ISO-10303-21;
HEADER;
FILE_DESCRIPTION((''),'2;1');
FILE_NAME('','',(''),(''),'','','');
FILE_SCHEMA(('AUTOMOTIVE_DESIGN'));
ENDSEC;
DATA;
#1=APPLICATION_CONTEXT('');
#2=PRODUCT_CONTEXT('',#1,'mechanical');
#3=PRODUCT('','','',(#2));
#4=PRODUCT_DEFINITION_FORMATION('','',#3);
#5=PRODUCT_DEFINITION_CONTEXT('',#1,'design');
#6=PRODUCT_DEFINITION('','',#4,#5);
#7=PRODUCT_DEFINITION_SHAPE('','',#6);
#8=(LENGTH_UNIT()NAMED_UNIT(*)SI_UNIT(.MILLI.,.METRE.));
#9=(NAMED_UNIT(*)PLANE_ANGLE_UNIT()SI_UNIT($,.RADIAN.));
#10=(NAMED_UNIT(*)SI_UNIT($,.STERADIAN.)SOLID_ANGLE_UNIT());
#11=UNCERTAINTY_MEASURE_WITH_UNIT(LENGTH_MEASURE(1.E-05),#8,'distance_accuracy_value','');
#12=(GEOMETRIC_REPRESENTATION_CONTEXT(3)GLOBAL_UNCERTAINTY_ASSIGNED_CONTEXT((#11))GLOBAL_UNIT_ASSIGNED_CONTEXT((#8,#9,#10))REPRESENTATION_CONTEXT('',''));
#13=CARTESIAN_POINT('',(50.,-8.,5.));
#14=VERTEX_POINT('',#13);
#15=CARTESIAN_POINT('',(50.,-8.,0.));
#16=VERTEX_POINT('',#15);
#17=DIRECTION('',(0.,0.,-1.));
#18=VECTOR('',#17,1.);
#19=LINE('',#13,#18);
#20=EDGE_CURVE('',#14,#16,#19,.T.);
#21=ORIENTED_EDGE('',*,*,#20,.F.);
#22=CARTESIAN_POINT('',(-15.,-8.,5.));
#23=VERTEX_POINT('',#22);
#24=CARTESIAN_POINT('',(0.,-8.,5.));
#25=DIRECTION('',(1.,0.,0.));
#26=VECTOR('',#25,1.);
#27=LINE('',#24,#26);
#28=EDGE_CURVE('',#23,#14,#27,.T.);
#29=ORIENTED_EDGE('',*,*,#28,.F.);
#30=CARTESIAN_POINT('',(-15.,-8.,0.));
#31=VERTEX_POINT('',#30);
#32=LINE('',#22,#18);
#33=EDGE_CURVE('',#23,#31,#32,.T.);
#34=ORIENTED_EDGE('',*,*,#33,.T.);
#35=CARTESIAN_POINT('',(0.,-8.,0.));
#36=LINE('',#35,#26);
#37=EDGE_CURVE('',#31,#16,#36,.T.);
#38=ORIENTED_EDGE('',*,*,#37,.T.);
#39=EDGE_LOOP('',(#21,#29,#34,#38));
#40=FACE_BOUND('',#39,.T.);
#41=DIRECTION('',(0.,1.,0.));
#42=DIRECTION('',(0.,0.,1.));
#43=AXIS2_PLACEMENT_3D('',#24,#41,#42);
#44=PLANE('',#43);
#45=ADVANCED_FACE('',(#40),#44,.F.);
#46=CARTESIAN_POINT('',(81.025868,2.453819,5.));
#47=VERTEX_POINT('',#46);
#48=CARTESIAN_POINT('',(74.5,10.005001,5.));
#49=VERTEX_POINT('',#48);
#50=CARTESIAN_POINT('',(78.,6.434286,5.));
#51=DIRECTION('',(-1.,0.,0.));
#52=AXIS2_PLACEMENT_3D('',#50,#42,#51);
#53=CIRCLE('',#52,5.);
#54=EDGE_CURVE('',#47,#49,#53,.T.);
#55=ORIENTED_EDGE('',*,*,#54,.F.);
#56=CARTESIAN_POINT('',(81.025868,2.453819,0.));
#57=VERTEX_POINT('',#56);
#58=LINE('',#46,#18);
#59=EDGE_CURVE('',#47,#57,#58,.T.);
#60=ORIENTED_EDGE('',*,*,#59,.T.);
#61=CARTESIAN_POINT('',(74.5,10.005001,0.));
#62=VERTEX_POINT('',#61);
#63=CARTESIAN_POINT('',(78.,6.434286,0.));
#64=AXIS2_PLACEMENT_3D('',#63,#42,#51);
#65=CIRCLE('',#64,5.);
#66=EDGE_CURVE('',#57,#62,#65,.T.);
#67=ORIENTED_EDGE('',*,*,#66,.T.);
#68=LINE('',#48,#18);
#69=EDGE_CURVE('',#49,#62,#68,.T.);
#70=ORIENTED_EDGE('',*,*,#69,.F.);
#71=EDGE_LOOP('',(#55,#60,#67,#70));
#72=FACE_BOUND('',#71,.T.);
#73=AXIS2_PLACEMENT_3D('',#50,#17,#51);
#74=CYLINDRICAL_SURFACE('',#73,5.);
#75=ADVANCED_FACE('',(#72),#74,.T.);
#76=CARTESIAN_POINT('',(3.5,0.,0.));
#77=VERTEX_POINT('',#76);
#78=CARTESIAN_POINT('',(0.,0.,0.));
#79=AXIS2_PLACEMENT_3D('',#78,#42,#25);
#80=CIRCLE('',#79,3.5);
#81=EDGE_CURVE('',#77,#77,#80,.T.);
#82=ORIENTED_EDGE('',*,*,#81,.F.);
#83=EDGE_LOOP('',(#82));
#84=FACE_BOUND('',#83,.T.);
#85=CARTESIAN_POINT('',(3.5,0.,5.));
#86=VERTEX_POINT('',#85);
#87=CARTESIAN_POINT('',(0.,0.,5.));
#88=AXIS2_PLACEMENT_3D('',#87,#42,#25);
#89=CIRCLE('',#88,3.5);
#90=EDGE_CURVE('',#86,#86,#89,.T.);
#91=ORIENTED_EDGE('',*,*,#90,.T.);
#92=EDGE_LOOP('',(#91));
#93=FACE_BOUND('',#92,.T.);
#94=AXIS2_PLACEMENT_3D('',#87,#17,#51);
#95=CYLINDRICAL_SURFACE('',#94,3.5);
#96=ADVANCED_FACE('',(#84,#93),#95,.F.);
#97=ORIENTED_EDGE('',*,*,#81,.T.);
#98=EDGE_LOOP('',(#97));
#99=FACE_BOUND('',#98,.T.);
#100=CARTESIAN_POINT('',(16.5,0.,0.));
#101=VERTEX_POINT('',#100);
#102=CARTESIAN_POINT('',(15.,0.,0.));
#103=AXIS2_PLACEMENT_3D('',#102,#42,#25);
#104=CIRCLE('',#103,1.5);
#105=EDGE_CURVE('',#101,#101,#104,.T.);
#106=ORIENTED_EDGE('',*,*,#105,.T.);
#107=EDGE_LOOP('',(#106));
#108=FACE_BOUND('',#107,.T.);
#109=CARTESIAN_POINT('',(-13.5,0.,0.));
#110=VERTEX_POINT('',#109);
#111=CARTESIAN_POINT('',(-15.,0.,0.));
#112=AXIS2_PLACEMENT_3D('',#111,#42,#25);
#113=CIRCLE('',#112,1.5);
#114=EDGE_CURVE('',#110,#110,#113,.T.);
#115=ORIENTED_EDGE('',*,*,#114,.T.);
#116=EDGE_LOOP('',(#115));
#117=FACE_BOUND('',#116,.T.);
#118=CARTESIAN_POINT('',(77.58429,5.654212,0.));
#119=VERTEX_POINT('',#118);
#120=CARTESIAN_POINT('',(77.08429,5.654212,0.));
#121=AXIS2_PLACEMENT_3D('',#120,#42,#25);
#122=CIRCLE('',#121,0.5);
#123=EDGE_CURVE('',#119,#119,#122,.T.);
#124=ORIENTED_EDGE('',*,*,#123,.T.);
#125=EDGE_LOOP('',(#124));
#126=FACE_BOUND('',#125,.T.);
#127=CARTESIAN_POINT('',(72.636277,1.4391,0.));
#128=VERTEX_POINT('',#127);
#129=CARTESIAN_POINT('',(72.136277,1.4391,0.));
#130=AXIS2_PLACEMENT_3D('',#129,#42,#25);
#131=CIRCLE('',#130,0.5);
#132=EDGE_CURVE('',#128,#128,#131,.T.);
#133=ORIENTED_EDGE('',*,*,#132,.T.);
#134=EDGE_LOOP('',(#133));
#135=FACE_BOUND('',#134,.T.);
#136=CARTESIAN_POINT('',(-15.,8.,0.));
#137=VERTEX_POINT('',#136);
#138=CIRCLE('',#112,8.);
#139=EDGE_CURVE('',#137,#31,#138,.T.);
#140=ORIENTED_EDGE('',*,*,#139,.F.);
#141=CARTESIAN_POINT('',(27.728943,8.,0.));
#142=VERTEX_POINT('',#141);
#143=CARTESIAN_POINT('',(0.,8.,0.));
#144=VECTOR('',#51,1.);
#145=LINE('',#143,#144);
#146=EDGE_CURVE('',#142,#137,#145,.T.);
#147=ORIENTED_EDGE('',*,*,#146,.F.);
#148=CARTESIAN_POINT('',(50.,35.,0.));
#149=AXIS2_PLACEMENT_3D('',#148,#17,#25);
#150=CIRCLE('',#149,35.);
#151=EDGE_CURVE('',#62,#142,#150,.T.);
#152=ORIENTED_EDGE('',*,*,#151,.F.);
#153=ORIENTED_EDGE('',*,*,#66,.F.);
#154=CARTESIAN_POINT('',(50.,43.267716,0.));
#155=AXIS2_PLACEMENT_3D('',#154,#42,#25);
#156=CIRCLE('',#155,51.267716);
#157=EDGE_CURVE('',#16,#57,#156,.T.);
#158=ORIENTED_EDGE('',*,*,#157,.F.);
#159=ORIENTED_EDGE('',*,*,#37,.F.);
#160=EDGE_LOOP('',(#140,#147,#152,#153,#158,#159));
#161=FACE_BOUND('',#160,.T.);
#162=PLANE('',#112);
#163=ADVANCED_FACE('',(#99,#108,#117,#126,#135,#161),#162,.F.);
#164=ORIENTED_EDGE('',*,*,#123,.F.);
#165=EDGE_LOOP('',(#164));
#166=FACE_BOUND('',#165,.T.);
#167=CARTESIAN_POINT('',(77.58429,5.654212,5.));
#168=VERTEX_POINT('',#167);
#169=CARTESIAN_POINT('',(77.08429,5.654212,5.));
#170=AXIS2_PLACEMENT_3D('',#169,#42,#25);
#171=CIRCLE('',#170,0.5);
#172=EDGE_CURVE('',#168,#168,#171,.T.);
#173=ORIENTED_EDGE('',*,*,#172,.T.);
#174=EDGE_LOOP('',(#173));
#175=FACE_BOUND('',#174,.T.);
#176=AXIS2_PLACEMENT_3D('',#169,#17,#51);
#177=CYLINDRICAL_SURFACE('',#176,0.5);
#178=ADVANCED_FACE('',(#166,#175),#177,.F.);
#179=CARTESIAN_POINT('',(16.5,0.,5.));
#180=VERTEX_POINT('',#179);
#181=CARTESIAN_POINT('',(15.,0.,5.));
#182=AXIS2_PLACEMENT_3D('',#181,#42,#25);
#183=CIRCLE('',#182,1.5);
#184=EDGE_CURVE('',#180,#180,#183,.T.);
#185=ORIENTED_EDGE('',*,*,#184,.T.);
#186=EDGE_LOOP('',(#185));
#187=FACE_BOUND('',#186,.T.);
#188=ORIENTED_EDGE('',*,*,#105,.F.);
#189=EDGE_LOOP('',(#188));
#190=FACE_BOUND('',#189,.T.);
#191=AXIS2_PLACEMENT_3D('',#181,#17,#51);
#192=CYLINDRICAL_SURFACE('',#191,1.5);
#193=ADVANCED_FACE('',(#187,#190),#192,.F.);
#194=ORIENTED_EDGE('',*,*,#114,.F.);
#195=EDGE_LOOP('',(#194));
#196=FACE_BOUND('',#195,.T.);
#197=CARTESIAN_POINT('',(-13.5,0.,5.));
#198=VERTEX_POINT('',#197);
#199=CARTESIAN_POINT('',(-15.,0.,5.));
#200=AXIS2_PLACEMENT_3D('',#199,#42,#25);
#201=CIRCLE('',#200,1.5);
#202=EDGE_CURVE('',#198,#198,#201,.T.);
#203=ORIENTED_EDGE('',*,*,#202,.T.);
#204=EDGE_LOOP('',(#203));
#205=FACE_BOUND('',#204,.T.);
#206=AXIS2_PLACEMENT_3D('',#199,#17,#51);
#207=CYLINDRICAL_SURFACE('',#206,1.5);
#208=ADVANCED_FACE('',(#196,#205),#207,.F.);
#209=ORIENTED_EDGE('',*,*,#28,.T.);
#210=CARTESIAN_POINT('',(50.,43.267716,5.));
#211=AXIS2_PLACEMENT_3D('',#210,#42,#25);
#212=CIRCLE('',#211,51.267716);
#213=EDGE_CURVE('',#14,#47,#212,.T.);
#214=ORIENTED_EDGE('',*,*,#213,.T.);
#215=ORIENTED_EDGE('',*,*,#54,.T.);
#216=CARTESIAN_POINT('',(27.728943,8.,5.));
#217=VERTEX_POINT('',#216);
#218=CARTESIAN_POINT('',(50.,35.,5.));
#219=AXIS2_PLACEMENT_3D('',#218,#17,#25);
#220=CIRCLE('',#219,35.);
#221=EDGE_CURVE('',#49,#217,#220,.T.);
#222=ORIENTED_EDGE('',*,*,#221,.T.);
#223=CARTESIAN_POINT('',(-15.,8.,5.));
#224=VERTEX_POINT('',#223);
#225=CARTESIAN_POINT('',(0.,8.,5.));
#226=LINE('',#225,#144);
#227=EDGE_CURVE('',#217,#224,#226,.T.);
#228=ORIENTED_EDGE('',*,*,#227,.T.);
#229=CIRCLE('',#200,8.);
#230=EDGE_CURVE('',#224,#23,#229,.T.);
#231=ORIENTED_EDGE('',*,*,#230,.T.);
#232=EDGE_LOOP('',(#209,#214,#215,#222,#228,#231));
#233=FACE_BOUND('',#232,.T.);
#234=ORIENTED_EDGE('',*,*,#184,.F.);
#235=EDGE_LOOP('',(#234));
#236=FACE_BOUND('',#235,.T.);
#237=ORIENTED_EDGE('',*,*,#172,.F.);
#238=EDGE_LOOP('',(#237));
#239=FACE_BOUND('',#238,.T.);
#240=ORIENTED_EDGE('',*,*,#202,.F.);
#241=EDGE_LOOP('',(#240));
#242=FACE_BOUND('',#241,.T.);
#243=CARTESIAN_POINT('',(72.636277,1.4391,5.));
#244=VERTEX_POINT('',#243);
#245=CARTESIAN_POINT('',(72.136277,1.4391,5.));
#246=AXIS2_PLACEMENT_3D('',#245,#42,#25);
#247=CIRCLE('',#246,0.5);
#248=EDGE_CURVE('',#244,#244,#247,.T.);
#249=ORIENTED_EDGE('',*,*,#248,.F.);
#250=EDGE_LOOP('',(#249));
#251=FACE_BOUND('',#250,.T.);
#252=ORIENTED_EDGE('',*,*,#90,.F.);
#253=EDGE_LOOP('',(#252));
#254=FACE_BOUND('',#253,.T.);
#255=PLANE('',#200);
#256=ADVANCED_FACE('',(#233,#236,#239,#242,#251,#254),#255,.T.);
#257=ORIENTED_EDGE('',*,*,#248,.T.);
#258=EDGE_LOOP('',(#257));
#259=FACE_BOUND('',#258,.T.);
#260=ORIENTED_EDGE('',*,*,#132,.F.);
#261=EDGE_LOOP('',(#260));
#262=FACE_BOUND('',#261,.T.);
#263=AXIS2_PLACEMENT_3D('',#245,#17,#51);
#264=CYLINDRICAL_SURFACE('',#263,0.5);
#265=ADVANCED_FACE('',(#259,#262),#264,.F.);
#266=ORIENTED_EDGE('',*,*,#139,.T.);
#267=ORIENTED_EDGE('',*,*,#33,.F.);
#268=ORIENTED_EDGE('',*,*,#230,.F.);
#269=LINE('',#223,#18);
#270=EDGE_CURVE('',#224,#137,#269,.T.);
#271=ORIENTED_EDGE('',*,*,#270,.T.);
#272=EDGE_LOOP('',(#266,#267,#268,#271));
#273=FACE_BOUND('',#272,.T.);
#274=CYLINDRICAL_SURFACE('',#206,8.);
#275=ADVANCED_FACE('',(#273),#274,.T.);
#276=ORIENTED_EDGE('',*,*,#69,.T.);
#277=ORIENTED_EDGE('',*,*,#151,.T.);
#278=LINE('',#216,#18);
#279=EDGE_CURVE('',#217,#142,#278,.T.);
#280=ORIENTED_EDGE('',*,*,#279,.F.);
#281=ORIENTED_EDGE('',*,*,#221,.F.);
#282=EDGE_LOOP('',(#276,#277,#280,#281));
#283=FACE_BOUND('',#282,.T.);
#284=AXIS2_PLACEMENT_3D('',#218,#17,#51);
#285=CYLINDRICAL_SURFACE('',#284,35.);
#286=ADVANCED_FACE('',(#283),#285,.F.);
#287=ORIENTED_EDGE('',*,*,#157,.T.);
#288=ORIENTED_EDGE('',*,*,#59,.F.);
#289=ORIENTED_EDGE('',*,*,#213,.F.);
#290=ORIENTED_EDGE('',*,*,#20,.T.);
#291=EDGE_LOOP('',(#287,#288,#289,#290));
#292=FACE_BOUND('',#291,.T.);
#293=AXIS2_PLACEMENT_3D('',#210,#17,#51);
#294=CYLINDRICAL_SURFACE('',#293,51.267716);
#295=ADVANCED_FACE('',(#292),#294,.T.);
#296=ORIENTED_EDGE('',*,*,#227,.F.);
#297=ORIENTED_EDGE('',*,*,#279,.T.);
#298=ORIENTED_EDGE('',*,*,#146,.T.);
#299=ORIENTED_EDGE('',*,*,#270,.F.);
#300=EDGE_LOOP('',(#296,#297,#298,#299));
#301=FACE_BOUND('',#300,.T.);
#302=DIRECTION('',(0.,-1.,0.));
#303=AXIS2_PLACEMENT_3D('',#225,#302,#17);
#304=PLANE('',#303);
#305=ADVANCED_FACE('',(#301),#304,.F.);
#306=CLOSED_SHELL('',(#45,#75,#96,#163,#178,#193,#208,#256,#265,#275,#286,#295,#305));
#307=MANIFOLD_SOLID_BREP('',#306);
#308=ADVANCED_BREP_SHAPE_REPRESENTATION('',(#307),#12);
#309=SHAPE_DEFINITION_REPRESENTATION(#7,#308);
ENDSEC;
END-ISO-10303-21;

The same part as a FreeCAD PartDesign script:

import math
import FreeCAD as App
import Part
import Sketcher
from FreeCAD import Vector
Q = App.Units.Quantity

doc = App.newDocument("Part")
body = doc.addObject("PartDesign::Body", "Body")

# Sketch on XY plane
sketch1 = body.newObject("Sketcher::SketchObject", "Sketch")
sketch1.AttachmentSupport = (doc.getObject("XY_Plane"), [""])
sketch1.MapMode = "FlatFace"
sketch1.addGeometry([
    Part.ArcOfCircle(Part.Circle(Vector(50, 35, 0), Vector(0, 0, 1), 35), math.radians(-129.517653), math.radians(-45.572996)),  # 0
    Part.LineSegment(Vector(27.728943, 8, 0), Vector(-15, 8, 0)),  # 1
    Part.ArcOfCircle(Part.Circle(Vector(-15, 0, 0), Vector(0, 0, 1), 8), math.radians(90), math.radians(270)),  # 2
    Part.LineSegment(Vector(-15, -8, 0), Vector(50, -8, 0)),  # 3
    Part.ArcOfCircle(Part.Circle(Vector(50, 43.267716, 0), Vector(0, 0, 1), 51.267716), math.radians(-90), math.radians(-52.758665)),  # 4
    Part.ArcOfCircle(Part.Circle(Vector(78, 6.434286, 0), Vector(0, 0, 1), 5), math.radians(-52.758665), math.radians(134.427004)),  # 5
    Part.Circle(Vector(15, 0, 0), Vector(0, 0, 1), 1.5),  # 6
    Part.Circle(Vector(0, 0, 0), Vector(0, 0, 1), 3.5),  # 7
    Part.Circle(Vector(-15, 0, 0), Vector(0, 0, 1), 1.5),  # 8
    Part.Circle(Vector(72.136277, 1.4391, 0), Vector(0, 0, 1), 0.5),  # 9
    Part.Circle(Vector(77.08429, 5.654212, 0), Vector(0, 0, 1), 0.5),  # 10
], False)
sketch1.addConstraint([
    Sketcher.Constraint("Coincident", 0, 1, 1, 1),
    Sketcher.Constraint("Tangent", 1, 2, 2, 1),
    Sketcher.Constraint("Tangent", 2, 2, 3, 1),
    Sketcher.Constraint("Tangent", 3, 2, 4, 1),
    Sketcher.Constraint("Tangent", 4, 2, 5, 1),
    Sketcher.Constraint("Tangent", 5, 2, 0, 2),
    Sketcher.Constraint("Horizontal", 1),
    Sketcher.Constraint("Horizontal", 3),
    Sketcher.Constraint("Coincident", 7, 3, -1, 1),
    Sketcher.Constraint("Coincident", 8, 3, 2, 3),
    Sketcher.Constraint("Equal", 6, 8),
    Sketcher.Constraint("Equal", 9, 10),
    Sketcher.Constraint("Symmetric", 2, 3, 6, 3, -1, 1),
    Sketcher.Constraint("PointOnObject", 2, 3, -1),
    Sketcher.Constraint("Vertical", 0, 3, 4, 3),
    Sketcher.Constraint("Diameter", 6, Q("3 mm")),
    Sketcher.Constraint("Diameter", 7, Q("7 mm")),
    Sketcher.Constraint("Diameter", 9, Q("1 mm")),
    Sketcher.Constraint("Radius", 0, Q("35 mm")),
    Sketcher.Constraint("Radius", 2, Q("8 mm")),
    Sketcher.Constraint("Radius", 5, Q("5 mm")),
    Sketcher.Constraint("DistanceX", 3, 1, 3, 2, Q("65 mm")),
    Sketcher.Constraint("DistanceX", -1, 1, 0, 3, Q("50 mm")),
    Sketcher.Constraint("DistanceY", -1, 1, 0, 3, Q("35 mm")),
    Sketcher.Constraint("DistanceX", -1, 1, 5, 3, Q("78 mm")),
    Sketcher.Constraint("DistanceY", -1, 1, 9, 3, Q("1.4391 mm")),
    Sketcher.Constraint("DistanceX", -1, 1, 10, 3, Q("77.08429 mm")),
    Sketcher.Constraint("DistanceY", -1, 1, 10, 3, Q("5.654212 mm")),
    Sketcher.Constraint("DistanceX", 9, 3, 4, 2, Q("8.889591 mm")),
])
pad1 = body.newObject("PartDesign::Pad", "Pad")
pad1.Profile = sketch1
pad1.Length = 5

doc.recompute()
